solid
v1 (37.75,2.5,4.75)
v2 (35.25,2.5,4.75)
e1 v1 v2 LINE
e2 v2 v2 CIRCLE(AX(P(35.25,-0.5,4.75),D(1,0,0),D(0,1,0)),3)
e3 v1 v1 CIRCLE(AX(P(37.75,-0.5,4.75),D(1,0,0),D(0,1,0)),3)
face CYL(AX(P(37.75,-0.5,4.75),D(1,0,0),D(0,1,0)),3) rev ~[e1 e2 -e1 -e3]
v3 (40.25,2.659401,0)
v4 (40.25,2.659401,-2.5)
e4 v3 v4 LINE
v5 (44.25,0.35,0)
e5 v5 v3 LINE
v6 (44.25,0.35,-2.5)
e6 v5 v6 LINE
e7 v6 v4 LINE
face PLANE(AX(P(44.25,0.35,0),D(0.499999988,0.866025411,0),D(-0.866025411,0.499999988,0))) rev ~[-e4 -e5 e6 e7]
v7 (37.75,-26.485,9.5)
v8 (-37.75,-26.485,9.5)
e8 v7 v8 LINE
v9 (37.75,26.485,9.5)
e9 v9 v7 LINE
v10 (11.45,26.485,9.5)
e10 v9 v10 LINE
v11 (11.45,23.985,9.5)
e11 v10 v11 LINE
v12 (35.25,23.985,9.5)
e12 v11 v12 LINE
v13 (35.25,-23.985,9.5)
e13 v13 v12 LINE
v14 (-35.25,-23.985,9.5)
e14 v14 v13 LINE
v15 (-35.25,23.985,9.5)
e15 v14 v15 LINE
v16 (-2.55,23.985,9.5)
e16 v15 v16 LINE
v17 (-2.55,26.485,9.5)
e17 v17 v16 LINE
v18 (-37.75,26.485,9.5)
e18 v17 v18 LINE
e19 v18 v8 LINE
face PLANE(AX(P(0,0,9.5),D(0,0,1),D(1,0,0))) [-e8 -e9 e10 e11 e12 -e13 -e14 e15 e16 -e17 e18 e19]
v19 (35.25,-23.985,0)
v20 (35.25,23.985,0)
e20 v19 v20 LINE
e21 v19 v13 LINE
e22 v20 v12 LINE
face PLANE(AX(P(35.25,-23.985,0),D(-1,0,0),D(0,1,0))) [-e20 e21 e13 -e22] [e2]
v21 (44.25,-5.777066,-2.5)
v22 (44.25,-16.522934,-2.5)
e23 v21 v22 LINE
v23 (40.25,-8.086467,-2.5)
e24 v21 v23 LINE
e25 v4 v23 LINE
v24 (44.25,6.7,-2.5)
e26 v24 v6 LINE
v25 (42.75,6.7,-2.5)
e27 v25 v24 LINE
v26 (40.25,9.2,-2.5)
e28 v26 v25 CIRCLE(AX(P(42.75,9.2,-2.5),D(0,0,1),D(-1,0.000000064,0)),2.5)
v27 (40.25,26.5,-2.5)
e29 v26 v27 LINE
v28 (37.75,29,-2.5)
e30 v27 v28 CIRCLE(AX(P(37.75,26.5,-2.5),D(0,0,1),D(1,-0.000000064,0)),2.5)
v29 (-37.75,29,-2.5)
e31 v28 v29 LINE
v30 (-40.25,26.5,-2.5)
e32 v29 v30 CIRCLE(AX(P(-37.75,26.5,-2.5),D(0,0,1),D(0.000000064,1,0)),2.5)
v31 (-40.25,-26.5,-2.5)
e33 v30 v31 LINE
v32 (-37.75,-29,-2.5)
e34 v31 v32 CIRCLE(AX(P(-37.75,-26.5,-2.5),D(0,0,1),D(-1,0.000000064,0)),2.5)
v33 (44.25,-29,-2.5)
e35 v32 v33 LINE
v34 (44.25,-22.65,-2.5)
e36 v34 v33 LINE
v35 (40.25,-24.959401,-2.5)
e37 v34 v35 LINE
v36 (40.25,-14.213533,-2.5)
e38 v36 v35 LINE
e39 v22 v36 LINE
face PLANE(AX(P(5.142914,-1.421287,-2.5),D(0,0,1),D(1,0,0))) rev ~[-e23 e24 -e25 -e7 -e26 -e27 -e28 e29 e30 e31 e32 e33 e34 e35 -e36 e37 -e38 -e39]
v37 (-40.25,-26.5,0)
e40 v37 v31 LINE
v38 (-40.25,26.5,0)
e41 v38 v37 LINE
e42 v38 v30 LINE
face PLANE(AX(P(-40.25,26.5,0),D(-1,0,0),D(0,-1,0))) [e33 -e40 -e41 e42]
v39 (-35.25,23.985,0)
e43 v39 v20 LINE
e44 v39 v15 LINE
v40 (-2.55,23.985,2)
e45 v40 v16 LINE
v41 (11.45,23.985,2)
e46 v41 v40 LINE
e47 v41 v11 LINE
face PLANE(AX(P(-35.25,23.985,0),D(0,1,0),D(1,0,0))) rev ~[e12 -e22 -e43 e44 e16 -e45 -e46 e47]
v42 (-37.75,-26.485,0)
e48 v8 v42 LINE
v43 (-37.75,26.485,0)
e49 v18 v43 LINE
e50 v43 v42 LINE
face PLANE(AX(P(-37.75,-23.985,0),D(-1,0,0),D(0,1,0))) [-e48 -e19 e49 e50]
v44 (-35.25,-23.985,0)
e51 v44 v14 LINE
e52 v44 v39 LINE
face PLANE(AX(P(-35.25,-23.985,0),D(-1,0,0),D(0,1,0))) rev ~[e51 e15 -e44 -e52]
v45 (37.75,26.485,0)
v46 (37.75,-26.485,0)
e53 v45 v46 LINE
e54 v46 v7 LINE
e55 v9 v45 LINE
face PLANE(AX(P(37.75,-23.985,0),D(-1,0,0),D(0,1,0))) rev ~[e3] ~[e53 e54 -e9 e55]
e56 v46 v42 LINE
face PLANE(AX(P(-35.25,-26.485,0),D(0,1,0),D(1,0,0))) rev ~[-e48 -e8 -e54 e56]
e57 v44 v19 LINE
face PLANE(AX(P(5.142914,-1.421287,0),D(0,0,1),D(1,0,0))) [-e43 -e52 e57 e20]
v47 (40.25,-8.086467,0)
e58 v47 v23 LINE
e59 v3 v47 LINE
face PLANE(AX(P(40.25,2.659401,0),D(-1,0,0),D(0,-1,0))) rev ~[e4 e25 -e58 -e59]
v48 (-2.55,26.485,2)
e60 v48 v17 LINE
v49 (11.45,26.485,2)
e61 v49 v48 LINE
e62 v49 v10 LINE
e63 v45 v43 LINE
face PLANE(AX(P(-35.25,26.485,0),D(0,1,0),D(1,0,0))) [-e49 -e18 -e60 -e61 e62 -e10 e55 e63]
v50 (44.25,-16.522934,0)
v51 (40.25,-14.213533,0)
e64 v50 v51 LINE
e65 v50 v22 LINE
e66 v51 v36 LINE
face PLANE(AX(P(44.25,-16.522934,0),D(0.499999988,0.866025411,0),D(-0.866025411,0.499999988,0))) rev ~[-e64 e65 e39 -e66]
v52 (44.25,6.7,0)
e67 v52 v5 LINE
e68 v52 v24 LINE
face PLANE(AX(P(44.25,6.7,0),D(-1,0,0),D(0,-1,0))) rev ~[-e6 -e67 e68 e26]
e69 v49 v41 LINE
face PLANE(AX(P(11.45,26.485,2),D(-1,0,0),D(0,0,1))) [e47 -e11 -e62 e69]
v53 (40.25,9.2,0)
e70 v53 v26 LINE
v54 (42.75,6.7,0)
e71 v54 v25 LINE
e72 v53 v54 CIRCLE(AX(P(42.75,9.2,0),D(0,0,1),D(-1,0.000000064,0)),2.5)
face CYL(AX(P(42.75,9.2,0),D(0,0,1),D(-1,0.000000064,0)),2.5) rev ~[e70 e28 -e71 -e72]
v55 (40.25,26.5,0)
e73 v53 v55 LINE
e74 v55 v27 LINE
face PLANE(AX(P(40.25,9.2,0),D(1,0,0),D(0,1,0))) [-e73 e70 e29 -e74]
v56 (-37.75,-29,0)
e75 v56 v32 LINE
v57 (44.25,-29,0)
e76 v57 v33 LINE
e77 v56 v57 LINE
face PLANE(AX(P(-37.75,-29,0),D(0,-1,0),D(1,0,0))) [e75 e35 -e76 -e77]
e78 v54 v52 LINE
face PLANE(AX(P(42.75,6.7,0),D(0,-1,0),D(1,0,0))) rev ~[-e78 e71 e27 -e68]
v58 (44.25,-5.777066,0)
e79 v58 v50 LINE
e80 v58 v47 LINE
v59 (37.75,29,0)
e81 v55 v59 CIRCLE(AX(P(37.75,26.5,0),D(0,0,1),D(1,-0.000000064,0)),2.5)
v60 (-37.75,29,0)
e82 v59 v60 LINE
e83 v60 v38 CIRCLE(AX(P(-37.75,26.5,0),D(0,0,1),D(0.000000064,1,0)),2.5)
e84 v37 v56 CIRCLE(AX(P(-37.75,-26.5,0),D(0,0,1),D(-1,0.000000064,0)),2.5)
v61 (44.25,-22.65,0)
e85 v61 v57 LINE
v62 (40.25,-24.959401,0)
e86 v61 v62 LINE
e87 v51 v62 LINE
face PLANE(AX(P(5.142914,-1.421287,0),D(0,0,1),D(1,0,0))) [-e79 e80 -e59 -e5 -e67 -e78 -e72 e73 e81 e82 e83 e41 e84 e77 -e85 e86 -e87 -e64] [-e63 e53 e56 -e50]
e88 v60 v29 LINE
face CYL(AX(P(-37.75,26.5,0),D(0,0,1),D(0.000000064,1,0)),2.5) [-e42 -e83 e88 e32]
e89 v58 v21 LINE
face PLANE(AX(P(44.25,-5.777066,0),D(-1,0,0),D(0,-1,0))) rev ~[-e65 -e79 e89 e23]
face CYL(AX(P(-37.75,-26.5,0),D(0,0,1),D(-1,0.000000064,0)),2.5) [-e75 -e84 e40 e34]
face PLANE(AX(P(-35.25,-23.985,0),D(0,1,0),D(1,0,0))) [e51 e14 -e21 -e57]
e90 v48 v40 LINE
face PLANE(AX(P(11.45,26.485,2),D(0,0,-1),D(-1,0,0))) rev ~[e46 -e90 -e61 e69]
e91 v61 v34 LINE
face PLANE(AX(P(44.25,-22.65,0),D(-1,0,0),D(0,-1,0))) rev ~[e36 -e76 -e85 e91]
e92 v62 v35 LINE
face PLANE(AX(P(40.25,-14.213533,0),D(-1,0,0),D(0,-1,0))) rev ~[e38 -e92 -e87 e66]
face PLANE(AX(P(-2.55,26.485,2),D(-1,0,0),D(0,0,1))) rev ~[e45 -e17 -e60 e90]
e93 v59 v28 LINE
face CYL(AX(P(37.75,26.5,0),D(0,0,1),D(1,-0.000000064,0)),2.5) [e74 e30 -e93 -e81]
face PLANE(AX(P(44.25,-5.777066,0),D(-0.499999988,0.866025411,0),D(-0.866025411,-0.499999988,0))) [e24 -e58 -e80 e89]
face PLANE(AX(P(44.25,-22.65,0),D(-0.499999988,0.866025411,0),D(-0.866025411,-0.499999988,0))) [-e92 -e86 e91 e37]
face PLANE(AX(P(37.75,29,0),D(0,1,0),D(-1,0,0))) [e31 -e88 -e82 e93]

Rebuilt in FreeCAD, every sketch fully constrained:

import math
import FreeCAD as App
import Part
import Sketcher
Q = App.Units.Quantity


def faces_at(feature, points):
    """Names of the faces that lie closest to the given points."""
    faces = feature.Shape.Faces
    near = lambda p: min(range(len(faces)), key=lambda i: faces[i].distToShape(Part.Vertex(*p))[0])
    return sorted({f"Face{near(p) + 1}" for p in points})

doc = App.newDocument("Part")
params = doc.addObject("Spreadsheet::Sheet", "Params")
for row, (alias, value) in enumerate([
    ("sketch1_width", "70.5 mm"),
    ("sketch1_height", "47.97 mm"),
    ("pad1_length", "9.5 mm"),
    ("thickness_wall", "2.5 mm"),
    ("sketch2_radius", "2.5 mm"),
    ("sketch2_width", "82 mm"),
    ("sketch2_height", "53 mm"),
    ("sketch2_width2", "1.5 mm"),
    ("sketch2_height2", "17.3 mm"),
    ("pad2_length", "2.5 mm"),
    ("sketch3_diameter", "6 mm"),
    ("pocket1_length", "5 mm"),
    ("sketch4_width", "14 mm"),
    ("sketch4_height", "7.5 mm"),
    ("pocket2_length", "2.5 mm"),
], start=1):
    params.set(f"A{row}", alias)
    params.set(f"B{row}", "=" + value)
    params.setAlias(f"B{row}", alias)

body = doc.addObject("PartDesign::Body", "Body")

# Sketch on XY plane
sketch1 = body.newObject("Sketcher::SketchObject", "Sketch")
sketch1.AttachmentSupport = (doc.getObject("XY_Plane"), [""])
sketch1.MapMode = "FlatFace"
sketch1.addGeometry([
    Part.LineSegment(App.Vector(-35, 24, 0), App.Vector(-35, -24, 0)),
    Part.LineSegment(App.Vector(-35, -24, 0), App.Vector(35, -24, 0)),
    Part.LineSegment(App.Vector(35, -24, 0), App.Vector(35, 24, 0)),
    Part.LineSegment(App.Vector(35, 24, 0), App.Vector(-35, 24, 0)),
], False)
sketch1.addConstraint([
    Sketcher.Constraint("Coincident", 0, 2, 1, 1),
    Sketcher.Constraint("Coincident", 1, 2, 2, 1),
    Sketcher.Constraint("Coincident", 2, 2, 3, 1),
    Sketcher.Constraint("Coincident", 3, 2, 0, 1),
    Sketcher.Constraint("Vertical", 0),
    Sketcher.Constraint("Horizontal", 1),
    Sketcher.Constraint("Vertical", 2),
    Sketcher.Constraint("Horizontal", 3),
    Sketcher.Constraint("Symmetric", 0, 2, 2, 2, -1, 1),
    Sketcher.Constraint("DistanceX", 1, 1, 1, 2, Q("70.5 mm")),
    Sketcher.Constraint("DistanceY", 0, 2, 0, 1, Q("47.97 mm")),
])
sketch1.setExpression("Constraints[9]", "Params.sketch1_width")
sketch1.setExpression("Constraints[10]", "Params.sketch1_height")
pad1 = body.newObject("PartDesign::Pad", "Pad")
pad1.Profile = sketch1
pad1.setExpression("Length", "Params.pad1_length")
doc.recompute()

thickness = body.newObject("PartDesign::Thickness", "Thickness")
thickness.Base = (pad1, faces_at(pad1, [(0, 0, 9.5), (0, 0, 0)]))
thickness.setExpression("Value", "Params.thickness_wall")
thickness.Reversed = False
thickness.Join = "Intersection"

# Sketch on XY plane
sketch2 = body.newObject("Sketcher::SketchObject", "Sketch001")
sketch2.AttachmentSupport = (doc.getObject("XY_Plane"), [""])
sketch2.MapMode = "FlatFace"
sketch2.addGeometry([
    Part.LineSegment(App.Vector(-40.2, 26.5, 0), App.Vector(-40.2, -26.5, 0)),  # 0
    Part.ArcOfCircle(Part.Circle(App.Vector(-37.8, -26.5, 0), App.Vector(0, 0, 1), 2.5), math.radians(180), math.radians(270)),  # 1
    Part.LineSegment(App.Vector(-37.8, -29, 0), App.Vector(44.2, -29, 0)),  # 2
    Part.LineSegment(App.Vector(44.2, -29, 0), App.Vector(44.2, -22.6, 0)),  # 3
    Part.LineSegment(App.Vector(44.2, -22.6, 0), App.Vector(40.2, -25, 0)),  # 4
    Part.LineSegment(App.Vector(40.2, -25, 0), App.Vector(40.2, -14.2, 0)),  # 5
    Part.LineSegment(App.Vector(40.2, -14.2, 0), App.Vector(44.2, -16.5, 0)),  # 6
    Part.LineSegment(App.Vector(44.2, -16.5, 0), App.Vector(44.2, -5.8, 0)),  # 7
    Part.LineSegment(App.Vector(44.2, -5.8, 0), App.Vector(40.2, -8.1, 0)),  # 8
    Part.LineSegment(App.Vector(40.2, -8.1, 0), App.Vector(40.2, 2.7, 0)),  # 9
    Part.LineSegment(App.Vector(40.2, 2.7, 0), App.Vector(44.2, 0.3, 0)),  # 10
    Part.LineSegment(App.Vector(44.2, 0.3, 0), App.Vector(44.2, 6.7, 0)),  # 11
    Part.LineSegment(App.Vector(44.2, 6.7, 0), App.Vector(42.8, 6.7, 0)),  # 12
    Part.ArcOfCircle(Part.Circle(App.Vector(42.7, 9.2, 0), App.Vector(0, 0, 1), 2.5), math.radians(180), math.radians(270)),  # 13
    Part.LineSegment(App.Vector(40.2, 9.2, 0), App.Vector(40.2, 26.5, 0)),  # 14
    Part.ArcOfCircle(Part.Circle(App.Vector(37.8, 26.5, 0), App.Vector(0, 0, 1), 2.5), math.radians(0), math.radians(90)),  # 15
    Part.LineSegment(App.Vector(37.8, 29, 0), App.Vector(-37.8, 29, 0)),  # 16
    Part.ArcOfCircle(Part.Circle(App.Vector(-37.8, 26.5, 0), App.Vector(0, 0, 1), 2.5), math.radians(90), math.radians(180)),  # 17
], False)
sketch2.addConstraint([
    Sketcher.Constraint("Tangent", 0, 2, 1, 1),
    Sketcher.Constraint("Tangent", 1, 2, 2, 1),
    Sketcher.Constraint("Coincident", 2, 2, 3, 1),
    Sketcher.Constraint("Coincident", 3, 2, 4, 1),
    Sketcher.Constraint("Coincident", 4, 2, 5, 1),
    Sketcher.Constraint("Coincident", 5, 2, 6, 1),
    Sketcher.Constraint("Coincident", 6, 2, 7, 1),
    Sketcher.Constraint("Coincident", 7, 2, 8, 1),
    Sketcher.Constraint("Coincident", 8, 2, 9, 1),
    Sketcher.Constraint("Coincident", 9, 2, 10, 1),
    Sketcher.Constraint("Coincident", 10, 2, 11, 1),
    Sketcher.Constraint("Coincident", 11, 2, 12, 1),
    Sketcher.Constraint("Tangent", 12, 2, 13, 2),
    Sketcher.Constraint("Tangent", 13, 1, 14, 1),
    Sketcher.Constraint("Tangent", 14, 2, 15, 1),
    Sketcher.Constraint("Tangent", 15, 2, 16, 1),
    Sketcher.Constraint("Tangent", 16, 2, 17, 1),
    Sketcher.Constraint("Tangent", 17, 2, 0, 1),
    Sketcher.Constraint("Vertical", 0),
    Sketcher.Constraint("Horizontal", 2),
    Sketcher.Constraint("Vertical", 3),
    Sketcher.Constraint("Vertical", 5),
    Sketcher.Constraint("Vertical", 7),
    Sketcher.Constraint("Vertical", 9),
    Sketcher.Constraint("Vertical", 11),
    Sketcher.Constraint("Horizontal", 12),
    Sketcher.Constraint("Vertical", 14),
    Sketcher.Constraint("Horizontal", 16),
    Sketcher.Constraint("Equal", 1, 13),
    Sketcher.Constraint("Equal", 13, 15),
    Sketcher.Constraint("Equal", 15, 17),
    Sketcher.Constraint("Symmetric", 1, 3, 15, 3, -1, 1),
    Sketcher.Constraint("Parallel", 4, 8),
    Sketcher.Constraint("Parallel", 6, 10),
    Sketcher.Constraint("Vertical", 3, 2, 6, 2),
    Sketcher.Constraint("Vertical", 5, 2, 8, 2),
    Sketcher.Constraint("Vertical", 7, 2, 10, 2),
    Sketcher.Constraint("Vertical", 9, 2, 13, 1),
    Sketcher.Constraint("Equal", 5, 7),
    Sketcher.Constraint("Equal", 7, 9),
    Sketcher.Constraint("Equal", 3, 11),
    Sketcher.Constraint("Equal", 4, 6),
    Sketcher.Constraint("Radius", 1, Q("2.5 mm")),
    Sketcher.Constraint("DistanceX", 2, 1, 2, 2, Q("82 mm")),
    Sketcher.Constraint("DistanceY", 0, 2, 0, 1, Q("53 mm")),
    Sketcher.Constraint("Angle", 4, Q("-150.000001 deg")),
    Sketcher.Constraint("DistanceX", 12, 2, 12, 1, Q("1.5 mm")),
    Sketcher.Constraint("DistanceY", 14, 1, 14, 2, Q("17.3 mm")),
    Sketcher.Constraint("DistanceY", 3, 1, 3, 2, Q("6.35 mm")),
])
sketch2.setExpression("Constraints[42]", "Params.sketch2_radius")
sketch2.setExpression("Constraints[43]", "Params.sketch2_width")
sketch2.setExpression("Constraints[44]", "Params.sketch2_height")
sketch2.setExpression("Constraints[46]", "Params.sketch2_width2")
sketch2.setExpression("Constraints[47]", "Params.sketch2_height2")
pad2 = body.newObject("PartDesign::Pad", "Pad001")
pad2.Profile = sketch2
pad2.setExpression("Length", "Params.pad2_length")
pad2.Reversed = True

# Sketch on YZ plane
sketch3 = body.newObject("Sketcher::SketchObject", "Sketch002")
sketch3.AttachmentSupport = (doc.getObject("YZ_Plane"), [""])
sketch3.MapMode = "FlatFace"
sketch3.AttachmentOffset = App.Placement(App.Vector(0, 0, 37.75), App.Rotation())
sketch3.addGeometry(Part.Circle(App.Vector(-0.5, 4.8, 0), App.Vector(0, 0, 1), 3), False)
sketch3.addConstraint([
    Sketcher.Constraint("Diameter", 0, Q("6 mm")),
    Sketcher.Constraint("DistanceX", 0, 3, -1, 1, Q("0.5 mm")),
    Sketcher.Constraint("DistanceY", -1, 1, 0, 3, Q("4.75 mm")),
])
sketch3.setExpression("Constraints[0]", "Params.sketch3_diameter")
pocket1 = body.newObject("PartDesign::Pocket", "Pocket")
pocket1.Profile = sketch3
pocket1.setExpression("Length", "Params.pocket1_length")

# Sketch on XZ plane
sketch4 = body.newObject("Sketcher::SketchObject", "Sketch003")
sketch4.AttachmentSupport = (doc.getObject("XZ_Plane"), [""])
sketch4.MapMode = "FlatFace"
sketch4.AttachmentOffset = App.Placement(App.Vector(0, 0, -26.485), App.Rotation())
sketch4.addGeometry([
    Part.LineSegment(App.Vector(11, 10, 0), App.Vector(11, 2, 0)),
    Part.LineSegment(App.Vector(11, 2, 0), App.Vector(-3, 2, 0)),
    Part.LineSegment(App.Vector(-3, 2, 0), App.Vector(-3, 10, 0)),
    Part.LineSegment(App.Vector(-3, 10, 0), App.Vector(11, 10, 0)),
], False)
sketch4.addConstraint([
    Sketcher.Constraint("Coincident", 0, 2, 1, 1),
    Sketcher.Constraint("Coincident", 1, 2, 2, 1),
    Sketcher.Constraint("Coincident", 2, 2, 3, 1),
    Sketcher.Constraint("Coincident", 3, 2, 0, 1),
    Sketcher.Constraint("Vertical", 0),
    Sketcher.Constraint("Horizontal", 1),
    Sketcher.Constraint("Vertical", 2),
    Sketcher.Constraint("Horizontal", 3),
    Sketcher.Constraint("DistanceX", 1, 2, 1, 1, Q("14 mm")),
    Sketcher.Constraint("DistanceY", 0, 2, 0, 1, Q("7.5 mm")),
    Sketcher.Constraint("DistanceY", -1, 1, 0, 2, Q("2 mm")),
    Sketcher.Constraint("DistanceX", -1, 1, 0, 2, Q("11.45 mm")),
])
sketch4.setExpression("Constraints[8]", "Params.sketch4_width")
sketch4.setExpression("Constraints[9]", "Params.sketch4_height")
pocket2 = body.newObject("PartDesign::Pocket", "Pocket001")
pocket2.Profile = sketch4
pocket2.setExpression("Length", "Params.pocket2_length")
pocket2.Reversed = True

doc.recompute()
